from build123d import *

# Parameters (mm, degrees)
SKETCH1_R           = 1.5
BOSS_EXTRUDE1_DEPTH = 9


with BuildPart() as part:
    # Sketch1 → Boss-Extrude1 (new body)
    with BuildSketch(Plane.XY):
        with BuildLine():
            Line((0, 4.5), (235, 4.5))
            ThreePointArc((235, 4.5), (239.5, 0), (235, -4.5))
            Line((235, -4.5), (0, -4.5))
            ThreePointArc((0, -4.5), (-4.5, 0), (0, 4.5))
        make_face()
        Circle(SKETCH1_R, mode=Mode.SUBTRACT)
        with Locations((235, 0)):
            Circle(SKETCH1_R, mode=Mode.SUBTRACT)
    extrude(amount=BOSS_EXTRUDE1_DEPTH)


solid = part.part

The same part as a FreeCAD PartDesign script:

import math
import FreeCAD as App
import Part
import Sketcher

V = App.Vector

doc = App.newDocument("Part")
body = doc.addObject("PartDesign::Body", "Body")

sketch1 = body.newObject("Sketcher::SketchObject", "Sketch")
sketch1.AttachmentSupport = (doc.getObject("XY_Plane"), [""])
sketch1.MapMode = "FlatFace"
sketch1.addGeometry([
    Part.LineSegment(V(235, 4.5, 0), V(0, 4.5, 0)),
    Part.ArcOfCircle(Part.Circle(V(0, 0, 0), V(0, 0, 1), 4.5), math.radians(90), math.radians(270)),
    Part.LineSegment(V(0, -4.5, 0), V(235, -4.5, 0)),
    Part.ArcOfCircle(Part.Circle(V(235, 0, 0), V(0, 0, 1), 4.5), math.radians(-90), math.radians(90)),
    Part.Circle(V(235, 0, 0), V(0, 0, 1), 1.5),
    Part.Circle(V(0, 0, 0), V(0, 0, 1), 1.5),
], False)
sketch1.addConstraint([
    Sketcher.Constraint("Tangent", 0, 2, 1, 1),
    Sketcher.Constraint("Tangent", 1, 2, 2, 1),
    Sketcher.Constraint("Tangent", 2, 2, 3, 1),
    Sketcher.Constraint("Tangent", 3, 2, 0, 1),
    Sketcher.Constraint("Horizontal", 0),
    Sketcher.Constraint("Horizontal", 2),
    Sketcher.Constraint("Coincident", 1, 3, -1, 1),
    Sketcher.Constraint("Coincident", 5, 3, -1, 1),
    Sketcher.Constraint("Coincident", 4, 3, 3, 3),
    Sketcher.Constraint("Equal", 4, 5),
    Sketcher.Constraint("Diameter", 4, 3.0),
    Sketcher.Constraint("Radius", 1, 4.5),
    Sketcher.Constraint("DistanceX", 0, 2, 0, 1, 235.0),
])
pad1 = body.newObject("PartDesign::Pad", "Pad")
pad1.Profile = sketch1
pad1.Length = 9

doc.recompute()
